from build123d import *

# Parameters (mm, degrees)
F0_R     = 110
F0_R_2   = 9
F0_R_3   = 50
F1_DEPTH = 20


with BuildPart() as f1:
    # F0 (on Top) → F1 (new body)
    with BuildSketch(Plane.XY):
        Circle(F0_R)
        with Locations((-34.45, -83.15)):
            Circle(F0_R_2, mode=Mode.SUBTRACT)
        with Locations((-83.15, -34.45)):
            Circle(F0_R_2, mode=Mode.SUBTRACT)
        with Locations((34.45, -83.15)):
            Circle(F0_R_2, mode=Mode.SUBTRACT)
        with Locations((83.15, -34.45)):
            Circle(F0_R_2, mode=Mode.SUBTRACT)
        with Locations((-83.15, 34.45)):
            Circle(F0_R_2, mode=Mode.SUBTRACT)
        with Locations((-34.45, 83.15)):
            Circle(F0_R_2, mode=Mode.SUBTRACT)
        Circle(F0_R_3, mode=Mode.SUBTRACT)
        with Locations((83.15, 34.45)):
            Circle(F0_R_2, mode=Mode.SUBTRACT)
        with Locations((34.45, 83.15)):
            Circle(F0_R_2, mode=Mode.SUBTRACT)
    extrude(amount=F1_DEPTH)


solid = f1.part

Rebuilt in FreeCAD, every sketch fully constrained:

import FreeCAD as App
import Part
import Sketcher

V = App.Vector

doc = App.newDocument("Part")
params = doc.addObject("Spreadsheet::Sheet", "Params")
for row, (alias, value) in enumerate([
    ("sketch1_diameter", "220 mm"),
    ("sketch1_diameter2", "18 mm"),
    ("sketch1_diameter3", "100 mm"),
    ("pad1_length", "20 mm"),
], start=1):
    params.set(f"A{row}", alias)
    params.set(f"B{row}", "=" + value)
    params.setAlias(f"B{row}", alias)

body = doc.addObject("PartDesign::Body", "Body")

# Sketch on XY plane
sketch1 = body.newObject("Sketcher::SketchObject", "Sketch")
sketch1.AttachmentSupport = (doc.getObject("XY_Plane"), [""])
sketch1.MapMode = "FlatFace"
sketch1.addGeometry(Part.Circle(V(0, 0, 0), V(0, 0, 1), 110), False)
sketch1.addGeometry(Part.Circle(V(-34.45, -83.15, 0), V(0, 0, 1), 9), False)
sketch1.addGeometry(Part.Circle(V(-83.15, -34.45, 0), V(0, 0, 1), 9), False)
sketch1.addGeometry(Part.Circle(V(34.45, -83.15, 0), V(0, 0, 1), 9), False)
sketch1.addGeometry(Part.Circle(V(83.15, -34.45, 0), V(0, 0, 1), 9), False)
sketch1.addGeometry(Part.Circle(V(-83.15, 34.45, 0), V(0, 0, 1), 9), False)
sketch1.addGeometry(Part.Circle(V(-34.45, 83.15, 0), V(0, 0, 1), 9), False)
sketch1.addGeometry(Part.Circle(V(0, 0, 0), V(0, 0, 1), 50), False)
sketch1.addGeometry(Part.Circle(V(83.15, 34.45, 0), V(0, 0, 1), 9), False)
sketch1.addGeometry(Part.Circle(V(34.45, 83.15, 0), V(0, 0, 1), 9), False)
sketch1.addConstraint(Sketcher.Constraint("Coincident", 0, 3, -1, 1))
sketch1.addConstraint(Sketcher.Constraint("Coincident", 7, 3, -1, 1))
sketch1.addConstraint(Sketcher.Constraint("Equal", 1, 2))
sketch1.addConstraint(Sketcher.Constraint("Equal", 2, 3))
sketch1.addConstraint(Sketcher.Constraint("Equal", 3, 4))
sketch1.addConstraint(Sketcher.Constraint("Equal", 4, 5))
sketch1.addConstraint(Sketcher.Constraint("Equal", 5, 6))
sketch1.addConstraint(Sketcher.Constraint("Equal", 6, 8))
sketch1.addConstraint(Sketcher.Constraint("Equal", 8, 9))
sketch1.addConstraint(Sketcher.Constraint("Symmetric", 4, 3, 5, 3, -1, 1))
sketch1.addConstraint(Sketcher.Constraint("Symmetric", 3, 3, 6, 3, -1, 1))
sketch1.addConstraint(Sketcher.Constraint("Symmetric", 2, 3, 8, 3, -1, 1))
sketch1.addConstraint(Sketcher.Constraint("Symmetric", 1, 3, 9, 3, -1, 1))
sketch1.addConstraint(Sketcher.Constraint("Symmetric", 1, 3, 3, 3, -2))
sketch1.addConstraint(Sketcher.Constraint("Symmetric", 2, 3, 4, 3, -2))
sketch1.addConstraint(Sketcher.Constraint("Diameter", 0, 220.0))
sketch1.addConstraint(Sketcher.Constraint("Diameter", 1, 18.0))
sketch1.addConstraint(Sketcher.Constraint("Diameter", 7, 100.0))
sketch1.addConstraint(Sketcher.Constraint("DistanceX", 2, 3, 1, 3, 48.7))
sketch1.addConstraint(Sketcher.Constraint("DistanceY", 1, 3, 2, 3, 48.7))
sketch1.addConstraint(Sketcher.Constraint("DistanceX", 1, 3, 3, 3, 68.9))
sketch1.addConstraint(Sketcher.Constraint("DistanceY", 2, 3, 5, 3, 68.9))
sketch1.setExpression("Constraints[15]", "Params.sketch1_diameter")
sketch1.setExpression("Constraints[16]", "Params.sketch1_diameter2")
sketch1.setExpression("Constraints[17]", "Params.sketch1_diameter3")
pad1 = body.newObject("PartDesign::Pad", "Pad")
pad1.Profile = sketch1
pad1.setExpression("Length", "Params.pad1_length")

doc.recompute()
